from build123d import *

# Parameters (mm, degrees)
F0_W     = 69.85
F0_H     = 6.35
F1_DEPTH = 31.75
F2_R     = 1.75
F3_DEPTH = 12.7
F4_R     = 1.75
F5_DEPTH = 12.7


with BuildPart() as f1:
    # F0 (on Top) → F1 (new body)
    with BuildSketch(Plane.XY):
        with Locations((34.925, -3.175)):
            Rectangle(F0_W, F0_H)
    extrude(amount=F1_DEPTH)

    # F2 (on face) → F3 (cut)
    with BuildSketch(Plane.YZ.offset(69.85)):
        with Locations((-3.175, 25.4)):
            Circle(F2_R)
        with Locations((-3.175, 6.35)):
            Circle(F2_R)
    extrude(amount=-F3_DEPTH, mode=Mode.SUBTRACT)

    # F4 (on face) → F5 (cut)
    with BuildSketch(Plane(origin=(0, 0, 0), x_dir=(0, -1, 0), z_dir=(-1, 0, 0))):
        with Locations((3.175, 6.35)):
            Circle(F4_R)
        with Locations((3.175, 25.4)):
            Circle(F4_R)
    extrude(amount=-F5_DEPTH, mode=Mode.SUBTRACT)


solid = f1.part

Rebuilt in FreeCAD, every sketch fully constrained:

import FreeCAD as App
import Part
import Sketcher
from FreeCAD import Vector
Q = App.Units.Quantity

doc = App.newDocument("Part")
body = doc.addObject("PartDesign::Body", "Body")

sketch1 = body.newObject("Sketcher::SketchObject", "Sketch")
sketch1.AttachmentSupport = (doc.getObject("XY_Plane"), [""])
sketch1.MapMode = "FlatFace"
sketch1.addGeometry([
    Part.LineSegment(Vector(0, 0, 0), Vector(0, -6.35, 0)),
    Part.LineSegment(Vector(0, -6.35, 0), Vector(69.85, -6.35, 0)),
    Part.LineSegment(Vector(69.85, -6.35, 0), Vector(69.85, 0, 0)),
    Part.LineSegment(Vector(69.85, 0, 0), Vector(0, 0, 0)),
], False)
sketch1.addConstraint([
    Sketcher.Constraint("Coincident", 0, 2, 1, 1),
    Sketcher.Constraint("Coincident", 1, 2, 2, 1),
    Sketcher.Constraint("Coincident", 2, 2, 3, 1),
    Sketcher.Constraint("Coincident", 3, 2, 0, 1),
    Sketcher.Constraint("Vertical", 0),
    Sketcher.Constraint("Horizontal", 1),
    Sketcher.Constraint("Vertical", 2),
    Sketcher.Constraint("Horizontal", 3),
    Sketcher.Constraint("Coincident", 3, 2, -1, 1),
    Sketcher.Constraint("DistanceX", 1, 1, 1, 2, Q("2.75 in")),
    Sketcher.Constraint("DistanceY", 0, 2, 0, 1, Q("0.25 in")),
])
pad1 = body.newObject("PartDesign::Pad", "Pad")
pad1.Profile = sketch1
pad1.Length = Q("1.25 in")

sketch2 = body.newObject("Sketcher::SketchObject", "Sketch001")
sketch2.AttachmentSupport = (doc.getObject("YZ_Plane"), [""])
sketch2.MapMode = "FlatFace"
sketch2.AttachmentOffset = App.Placement(Vector(0, 0, 2.75 * 25.4), App.Rotation())
sketch2.addGeometry([
    Part.Circle(Vector(-3.175, 25.4, 0), Vector(0, 0, 1), 1.75),
    Part.Circle(Vector(-3.175, 6.35, 0), Vector(0, 0, 1), 1.75),
], False)
sketch2.addConstraint([
    Sketcher.Constraint("Equal", 0, 1),
    Sketcher.Constraint("Vertical", 0, 3, 1, 3),
    Sketcher.Constraint("DistanceY", -1, 1, 0, 3, Q("1 in")),
    Sketcher.Constraint("Diameter", 0, Q("3.5 mm")),
    Sketcher.Constraint("DistanceY", -1, 1, 1, 3, Q("0.25 in")),
    Sketcher.Constraint("DistanceX", 0, 3, -1, 1, Q("0.125 in")),
])
pocket1 = body.newObject("PartDesign::Pocket", "Pocket")
pocket1.Profile = sketch2
pocket1.Length = Q("0.5 in")

sketch3 = body.newObject("Sketcher::SketchObject", "Sketch002")
sketch3.AttachmentSupport = (doc.getObject("YZ_Plane"), [""])
sketch3.MapMode = "FlatFace"
sketch3.addGeometry([
    Part.Circle(Vector(-3.175, 6.35, 0), Vector(0, 0, 1), 1.75),
    Part.Circle(Vector(-3.175, 25.4, 0), Vector(0, 0, 1), 1.75),
], False)
sketch3.addConstraint([
    Sketcher.Constraint("Equal", 0, 1),
    Sketcher.Constraint("Vertical", 0, 3, 1, 3),
    Sketcher.Constraint("DistanceY", -1, 1, 1, 3, Q("1 in")),
    Sketcher.Constraint("Diameter", 0, Q("3.5 mm")),
    Sketcher.Constraint("DistanceY", -1, 1, 0, 3, Q("0.25 in")),
    Sketcher.Constraint("DistanceX", 0, 3, -1, 1, Q("0.125 in")),
])
pocket2 = body.newObject("PartDesign::Pocket", "Pocket001")
pocket2.Profile = sketch3
pocket2.Length = Q("0.5 in")
pocket2.Reversed = True

doc.recompute()
